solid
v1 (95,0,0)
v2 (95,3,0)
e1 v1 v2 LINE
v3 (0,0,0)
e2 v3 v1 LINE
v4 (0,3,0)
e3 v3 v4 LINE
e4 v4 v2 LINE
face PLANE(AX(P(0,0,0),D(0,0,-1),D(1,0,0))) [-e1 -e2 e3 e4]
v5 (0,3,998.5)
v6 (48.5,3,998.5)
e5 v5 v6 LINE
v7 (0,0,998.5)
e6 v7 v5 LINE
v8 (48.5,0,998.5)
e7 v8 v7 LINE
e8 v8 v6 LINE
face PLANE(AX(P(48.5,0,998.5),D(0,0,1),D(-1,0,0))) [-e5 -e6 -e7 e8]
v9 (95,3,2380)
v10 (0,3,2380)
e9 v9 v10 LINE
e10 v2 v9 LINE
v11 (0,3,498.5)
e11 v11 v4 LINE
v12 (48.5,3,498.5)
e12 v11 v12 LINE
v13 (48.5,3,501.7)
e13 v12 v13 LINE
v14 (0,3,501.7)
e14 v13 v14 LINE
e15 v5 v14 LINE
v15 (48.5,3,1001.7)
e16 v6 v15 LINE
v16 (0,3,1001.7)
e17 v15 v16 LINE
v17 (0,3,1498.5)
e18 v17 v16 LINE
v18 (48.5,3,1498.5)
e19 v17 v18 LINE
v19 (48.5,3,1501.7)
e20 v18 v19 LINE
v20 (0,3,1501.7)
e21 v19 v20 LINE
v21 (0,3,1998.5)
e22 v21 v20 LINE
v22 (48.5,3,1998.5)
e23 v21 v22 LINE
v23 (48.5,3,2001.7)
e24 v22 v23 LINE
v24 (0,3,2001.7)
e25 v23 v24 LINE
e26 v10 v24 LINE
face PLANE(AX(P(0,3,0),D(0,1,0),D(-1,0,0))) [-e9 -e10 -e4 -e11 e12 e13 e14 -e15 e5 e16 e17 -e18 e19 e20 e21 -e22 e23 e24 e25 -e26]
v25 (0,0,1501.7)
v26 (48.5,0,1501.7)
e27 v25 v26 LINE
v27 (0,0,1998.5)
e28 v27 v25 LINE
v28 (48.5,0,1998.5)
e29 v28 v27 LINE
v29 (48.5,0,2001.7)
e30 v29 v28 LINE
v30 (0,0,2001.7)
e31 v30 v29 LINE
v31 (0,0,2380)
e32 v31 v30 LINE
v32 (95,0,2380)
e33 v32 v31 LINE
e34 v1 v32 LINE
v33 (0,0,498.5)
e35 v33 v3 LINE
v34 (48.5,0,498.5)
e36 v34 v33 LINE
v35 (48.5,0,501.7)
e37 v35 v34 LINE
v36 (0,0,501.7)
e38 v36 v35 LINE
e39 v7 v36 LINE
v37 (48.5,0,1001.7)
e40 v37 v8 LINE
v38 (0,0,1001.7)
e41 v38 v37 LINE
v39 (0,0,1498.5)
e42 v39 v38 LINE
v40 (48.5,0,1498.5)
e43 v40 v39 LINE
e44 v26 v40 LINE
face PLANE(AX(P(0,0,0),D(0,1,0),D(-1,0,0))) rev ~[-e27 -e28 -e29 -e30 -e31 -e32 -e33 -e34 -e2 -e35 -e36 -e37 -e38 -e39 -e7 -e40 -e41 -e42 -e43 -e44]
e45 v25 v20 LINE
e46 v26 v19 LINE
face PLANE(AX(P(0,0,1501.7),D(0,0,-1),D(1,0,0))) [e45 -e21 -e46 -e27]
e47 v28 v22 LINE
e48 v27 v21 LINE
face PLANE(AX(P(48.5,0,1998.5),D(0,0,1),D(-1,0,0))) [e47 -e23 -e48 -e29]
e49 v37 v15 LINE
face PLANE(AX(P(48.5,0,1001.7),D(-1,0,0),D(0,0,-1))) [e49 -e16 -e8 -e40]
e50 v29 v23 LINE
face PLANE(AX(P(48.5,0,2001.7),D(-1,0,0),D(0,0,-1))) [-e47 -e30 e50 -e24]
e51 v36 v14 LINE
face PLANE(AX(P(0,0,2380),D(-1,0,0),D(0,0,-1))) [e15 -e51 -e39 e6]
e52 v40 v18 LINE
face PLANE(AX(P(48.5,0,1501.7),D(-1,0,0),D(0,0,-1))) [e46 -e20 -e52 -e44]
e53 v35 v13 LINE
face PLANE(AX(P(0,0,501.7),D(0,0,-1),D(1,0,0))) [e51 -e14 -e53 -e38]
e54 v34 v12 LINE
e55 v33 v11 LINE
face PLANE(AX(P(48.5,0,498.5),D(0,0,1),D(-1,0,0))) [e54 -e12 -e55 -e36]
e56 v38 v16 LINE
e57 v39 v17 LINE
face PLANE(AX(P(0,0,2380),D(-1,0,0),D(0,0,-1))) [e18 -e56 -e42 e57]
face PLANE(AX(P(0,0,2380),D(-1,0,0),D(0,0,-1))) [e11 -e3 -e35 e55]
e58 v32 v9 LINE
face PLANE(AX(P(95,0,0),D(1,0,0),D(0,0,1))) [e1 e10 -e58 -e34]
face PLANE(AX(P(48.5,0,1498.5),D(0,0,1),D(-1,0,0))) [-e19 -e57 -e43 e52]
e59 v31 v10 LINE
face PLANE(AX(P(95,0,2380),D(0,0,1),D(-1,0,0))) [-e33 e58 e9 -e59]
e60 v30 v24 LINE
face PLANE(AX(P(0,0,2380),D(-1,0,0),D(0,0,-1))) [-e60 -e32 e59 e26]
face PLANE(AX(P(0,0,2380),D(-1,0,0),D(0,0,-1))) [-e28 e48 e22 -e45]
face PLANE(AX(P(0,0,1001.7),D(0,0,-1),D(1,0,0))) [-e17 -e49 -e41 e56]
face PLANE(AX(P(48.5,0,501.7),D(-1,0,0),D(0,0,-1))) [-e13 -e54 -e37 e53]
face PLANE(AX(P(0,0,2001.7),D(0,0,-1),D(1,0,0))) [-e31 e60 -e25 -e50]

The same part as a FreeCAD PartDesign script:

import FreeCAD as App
import Part
import Sketcher

V = App.Vector


def add_polygon(sketch, points):
    """Adds a closed chain of lines whose ends are joined by coincident constraints."""
    first, n = sketch.GeometryCount, len(points)
    for a, b in zip(points, points[1:] + points[:1]):
        sketch.addGeometry(Part.LineSegment(App.Vector(*a, 0), App.Vector(*b, 0)), False)
    for i in range(n):
        sketch.addConstraint(Sketcher.Constraint("Coincident", first + i, 2, first + (i + 1) % n, 1))

doc = App.newDocument("Part")
body = doc.addObject("PartDesign::Body", "Body")

# Sketch on XZ plane
sketch1 = body.newObject("Sketcher::SketchObject", "Sketch")
sketch1.AttachmentSupport = (doc.getObject("XZ_Plane"), [""])
sketch1.MapMode = "FlatFace"
add_polygon(sketch1, [(95, 0), (0, 0), (0, 2380), (95, 2380)])  # lines 0-3
sketch1.addConstraint(Sketcher.Constraint("Horizontal", 0))
sketch1.addConstraint(Sketcher.Constraint("Vertical", 1))
sketch1.addConstraint(Sketcher.Constraint("Horizontal", 2))
sketch1.addConstraint(Sketcher.Constraint("Vertical", 3))
sketch1.addConstraint(Sketcher.Constraint("Coincident", 0, 2, -1, 1))
sketch1.addConstraint(Sketcher.Constraint("DistanceX", 0, 2, 0, 1, 95.0))
sketch1.addConstraint(Sketcher.Constraint("DistanceY", 1, 1, 1, 2, 2380.0))
pad1 = body.newObject("PartDesign::Pad", "Pad")
pad1.Profile = sketch1
pad1.Length = 3
pad1.Reversed = True

# Sketch on XZ plane
sketch2 = body.newObject("Sketcher::SketchObject", "Sketch001")
sketch2.AttachmentSupport = (doc.getObject("XZ_Plane"), [""])
sketch2.MapMode = "FlatFace"
add_polygon(sketch2, [(48.5, 501.7), (0, 501.7), (0, 498.5), (48.5, 498.5)])  # lines 0-3
sketch2.addConstraint(Sketcher.Constraint("Horizontal", 0))
sketch2.addConstraint(Sketcher.Constraint("Vertical", 1))
sketch2.addConstraint(Sketcher.Constraint("Horizontal", 2))
sketch2.addConstraint(Sketcher.Constraint("Vertical", 3))
sketch2.addConstraint(Sketcher.Constraint("PointOnObject", 0, 2, -2))
sketch2.addConstraint(Sketcher.Constraint("DistanceX", 0, 2, 0, 1, 48.5))
sketch2.addConstraint(Sketcher.Constraint("DistanceY", 1, 2, 1, 1, 3.2))
sketch2.addConstraint(Sketcher.Constraint("DistanceY", -1, 1, 1, 2, 498.5))
pocket1 = body.newObject("PartDesign::Pocket", "Pocket")
pocket1.Profile = sketch2
pocket1.Type = "ThroughAll"
doc.recompute()

linearpattern = body.newObject("PartDesign::LinearPattern", "LinearPattern")
linearpattern.Originals = [pocket1]
linearpattern.Direction = (doc.getObject("Z_Axis"), [""])
linearpattern.Mode = "offset"
linearpattern.Offset = 500
linearpattern.Occurrences = 5
body.Tip = linearpattern

doc.recompute()
